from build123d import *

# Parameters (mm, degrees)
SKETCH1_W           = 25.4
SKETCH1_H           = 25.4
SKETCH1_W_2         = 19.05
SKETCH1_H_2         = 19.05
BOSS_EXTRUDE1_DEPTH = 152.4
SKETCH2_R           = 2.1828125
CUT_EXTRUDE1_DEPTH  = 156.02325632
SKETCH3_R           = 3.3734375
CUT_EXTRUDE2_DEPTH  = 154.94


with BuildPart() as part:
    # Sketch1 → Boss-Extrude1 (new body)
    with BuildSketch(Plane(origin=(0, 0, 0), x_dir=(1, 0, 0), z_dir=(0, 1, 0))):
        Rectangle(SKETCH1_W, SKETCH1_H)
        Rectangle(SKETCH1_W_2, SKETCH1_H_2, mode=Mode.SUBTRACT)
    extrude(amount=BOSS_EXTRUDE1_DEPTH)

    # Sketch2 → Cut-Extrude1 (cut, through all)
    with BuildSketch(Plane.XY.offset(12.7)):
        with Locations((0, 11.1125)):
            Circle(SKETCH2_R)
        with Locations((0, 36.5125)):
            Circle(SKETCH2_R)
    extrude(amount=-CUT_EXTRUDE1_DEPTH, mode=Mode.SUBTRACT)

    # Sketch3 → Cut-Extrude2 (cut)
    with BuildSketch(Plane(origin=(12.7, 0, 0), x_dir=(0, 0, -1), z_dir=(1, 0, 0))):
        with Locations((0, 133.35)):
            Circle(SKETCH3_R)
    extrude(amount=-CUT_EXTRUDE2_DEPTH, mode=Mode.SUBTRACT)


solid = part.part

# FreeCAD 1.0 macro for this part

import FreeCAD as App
import Part
import Sketcher
from FreeCAD import Vector
Q = App.Units.Quantity


def add_polygon(sketch, points):
    """Adds a closed chain of lines whose ends are joined by coincident constraints."""
    first, n = sketch.GeometryCount, len(points)
    for a, b in zip(points, points[1:] + points[:1]):
        sketch.addGeometry(Part.LineSegment(App.Vector(*a, 0), App.Vector(*b, 0)), False)
    for i in range(n):
        sketch.addConstraint(Sketcher.Constraint("Coincident", first + i, 2, first + (i + 1) % n, 1))

doc = App.newDocument("Part")
body = doc.addObject("PartDesign::Body", "Body")

# Sketch on XZ plane
sketch1 = body.newObject("Sketcher::SketchObject", "Sketch")
sketch1.AttachmentSupport = (doc.getObject("XZ_Plane"), [""])
sketch1.MapMode = "FlatFace"
add_polygon(sketch1, [(-13, -13), (-13, 13), (13, 13), (13, -13)])  # lines 0-3
add_polygon(sketch1, [(10, 10), (-10, 10), (-10, -10), (10, -10)])  # lines 4-7
sketch1.addConstraint([
    Sketcher.Constraint("Vertical", 0),
    Sketcher.Constraint("Horizontal", 1),
    Sketcher.Constraint("Vertical", 2),
    Sketcher.Constraint("Horizontal", 3),
    Sketcher.Constraint("Horizontal", 4),
    Sketcher.Constraint("Vertical", 5),
    Sketcher.Constraint("Horizontal", 6),
    Sketcher.Constraint("Vertical", 7),
    Sketcher.Constraint("Symmetric", 0, 2, 2, 2, -1, 1),
    Sketcher.Constraint("Symmetric", 4, 2, 6, 2, -1, 1),
    Sketcher.Constraint("Equal", 3, 0),
    Sketcher.Constraint("Equal", 6, 5),
    Sketcher.Constraint("DistanceX", 1, 1, 1, 2, Q("1 in")),
    Sketcher.Constraint("DistanceX", 4, 2, 4, 1, Q("0.75 in")),
])
pad1 = body.newObject("PartDesign::Pad", "Pad")
pad1.Profile = sketch1
pad1.Length = Q("6 in")
pad1.Reversed = True

# Sketch on XY plane
sketch2 = body.newObject("Sketcher::SketchObject", "Sketch001")
sketch2.AttachmentSupport = (doc.getObject("XY_Plane"), [""])
sketch2.MapMode = "FlatFace"
sketch2.AttachmentOffset = App.Placement(Vector(0, 0, 0.5 * 25.4), App.Rotation())
sketch2.addGeometry([
    Part.Circle(Vector(0, 11.1, 0), Vector(0, 0, 1), 2.2),
    Part.Circle(Vector(0, 36.5, 0), Vector(0, 0, 1), 2.2),
], False)
sketch2.addConstraint([
    Sketcher.Constraint("Equal", 0, 1),
    Sketcher.Constraint("PointOnObject", 0, 3, -2),
    Sketcher.Constraint("PointOnObject", 1, 3, -2),
    Sketcher.Constraint("Diameter", 0, Q("0.171875 in")),
    Sketcher.Constraint("DistanceY", 0, 3, 1, 3, Q("1 in")),
    Sketcher.Constraint("DistanceY", -1, 1, 0, 3, Q("0.4375 in")),
])
pocket1 = body.newObject("PartDesign::Pocket", "Pocket")
pocket1.Profile = sketch2
pocket1.Type = "ThroughAll"

# Sketch on YZ plane
sketch3 = body.newObject("Sketcher::SketchObject", "Sketch002")
sketch3.AttachmentSupport = (doc.getObject("YZ_Plane"), [""])
sketch3.MapMode = "FlatFace"
sketch3.AttachmentOffset = App.Placement(Vector(0, 0, 0.5 * 25.4), App.Rotation())
sketch3.addGeometry(Part.Circle(Vector(133.3, 0, 0), Vector(0, 0, 1), 3.4), False)
sketch3.addConstraint([
    Sketcher.Constraint("PointOnObject", 0, 3, -1),
    Sketcher.Constraint("Diameter", 0, Q("0.265625 in")),
    Sketcher.Constraint("DistanceX", -1, 1, 0, 3, Q("5.25 in")),
])
pocket2 = body.newObject("PartDesign::Pocket", "Pocket001")
pocket2.Profile = sketch3
pocket2.Length = Q("6.1 in")

doc.recompute()
